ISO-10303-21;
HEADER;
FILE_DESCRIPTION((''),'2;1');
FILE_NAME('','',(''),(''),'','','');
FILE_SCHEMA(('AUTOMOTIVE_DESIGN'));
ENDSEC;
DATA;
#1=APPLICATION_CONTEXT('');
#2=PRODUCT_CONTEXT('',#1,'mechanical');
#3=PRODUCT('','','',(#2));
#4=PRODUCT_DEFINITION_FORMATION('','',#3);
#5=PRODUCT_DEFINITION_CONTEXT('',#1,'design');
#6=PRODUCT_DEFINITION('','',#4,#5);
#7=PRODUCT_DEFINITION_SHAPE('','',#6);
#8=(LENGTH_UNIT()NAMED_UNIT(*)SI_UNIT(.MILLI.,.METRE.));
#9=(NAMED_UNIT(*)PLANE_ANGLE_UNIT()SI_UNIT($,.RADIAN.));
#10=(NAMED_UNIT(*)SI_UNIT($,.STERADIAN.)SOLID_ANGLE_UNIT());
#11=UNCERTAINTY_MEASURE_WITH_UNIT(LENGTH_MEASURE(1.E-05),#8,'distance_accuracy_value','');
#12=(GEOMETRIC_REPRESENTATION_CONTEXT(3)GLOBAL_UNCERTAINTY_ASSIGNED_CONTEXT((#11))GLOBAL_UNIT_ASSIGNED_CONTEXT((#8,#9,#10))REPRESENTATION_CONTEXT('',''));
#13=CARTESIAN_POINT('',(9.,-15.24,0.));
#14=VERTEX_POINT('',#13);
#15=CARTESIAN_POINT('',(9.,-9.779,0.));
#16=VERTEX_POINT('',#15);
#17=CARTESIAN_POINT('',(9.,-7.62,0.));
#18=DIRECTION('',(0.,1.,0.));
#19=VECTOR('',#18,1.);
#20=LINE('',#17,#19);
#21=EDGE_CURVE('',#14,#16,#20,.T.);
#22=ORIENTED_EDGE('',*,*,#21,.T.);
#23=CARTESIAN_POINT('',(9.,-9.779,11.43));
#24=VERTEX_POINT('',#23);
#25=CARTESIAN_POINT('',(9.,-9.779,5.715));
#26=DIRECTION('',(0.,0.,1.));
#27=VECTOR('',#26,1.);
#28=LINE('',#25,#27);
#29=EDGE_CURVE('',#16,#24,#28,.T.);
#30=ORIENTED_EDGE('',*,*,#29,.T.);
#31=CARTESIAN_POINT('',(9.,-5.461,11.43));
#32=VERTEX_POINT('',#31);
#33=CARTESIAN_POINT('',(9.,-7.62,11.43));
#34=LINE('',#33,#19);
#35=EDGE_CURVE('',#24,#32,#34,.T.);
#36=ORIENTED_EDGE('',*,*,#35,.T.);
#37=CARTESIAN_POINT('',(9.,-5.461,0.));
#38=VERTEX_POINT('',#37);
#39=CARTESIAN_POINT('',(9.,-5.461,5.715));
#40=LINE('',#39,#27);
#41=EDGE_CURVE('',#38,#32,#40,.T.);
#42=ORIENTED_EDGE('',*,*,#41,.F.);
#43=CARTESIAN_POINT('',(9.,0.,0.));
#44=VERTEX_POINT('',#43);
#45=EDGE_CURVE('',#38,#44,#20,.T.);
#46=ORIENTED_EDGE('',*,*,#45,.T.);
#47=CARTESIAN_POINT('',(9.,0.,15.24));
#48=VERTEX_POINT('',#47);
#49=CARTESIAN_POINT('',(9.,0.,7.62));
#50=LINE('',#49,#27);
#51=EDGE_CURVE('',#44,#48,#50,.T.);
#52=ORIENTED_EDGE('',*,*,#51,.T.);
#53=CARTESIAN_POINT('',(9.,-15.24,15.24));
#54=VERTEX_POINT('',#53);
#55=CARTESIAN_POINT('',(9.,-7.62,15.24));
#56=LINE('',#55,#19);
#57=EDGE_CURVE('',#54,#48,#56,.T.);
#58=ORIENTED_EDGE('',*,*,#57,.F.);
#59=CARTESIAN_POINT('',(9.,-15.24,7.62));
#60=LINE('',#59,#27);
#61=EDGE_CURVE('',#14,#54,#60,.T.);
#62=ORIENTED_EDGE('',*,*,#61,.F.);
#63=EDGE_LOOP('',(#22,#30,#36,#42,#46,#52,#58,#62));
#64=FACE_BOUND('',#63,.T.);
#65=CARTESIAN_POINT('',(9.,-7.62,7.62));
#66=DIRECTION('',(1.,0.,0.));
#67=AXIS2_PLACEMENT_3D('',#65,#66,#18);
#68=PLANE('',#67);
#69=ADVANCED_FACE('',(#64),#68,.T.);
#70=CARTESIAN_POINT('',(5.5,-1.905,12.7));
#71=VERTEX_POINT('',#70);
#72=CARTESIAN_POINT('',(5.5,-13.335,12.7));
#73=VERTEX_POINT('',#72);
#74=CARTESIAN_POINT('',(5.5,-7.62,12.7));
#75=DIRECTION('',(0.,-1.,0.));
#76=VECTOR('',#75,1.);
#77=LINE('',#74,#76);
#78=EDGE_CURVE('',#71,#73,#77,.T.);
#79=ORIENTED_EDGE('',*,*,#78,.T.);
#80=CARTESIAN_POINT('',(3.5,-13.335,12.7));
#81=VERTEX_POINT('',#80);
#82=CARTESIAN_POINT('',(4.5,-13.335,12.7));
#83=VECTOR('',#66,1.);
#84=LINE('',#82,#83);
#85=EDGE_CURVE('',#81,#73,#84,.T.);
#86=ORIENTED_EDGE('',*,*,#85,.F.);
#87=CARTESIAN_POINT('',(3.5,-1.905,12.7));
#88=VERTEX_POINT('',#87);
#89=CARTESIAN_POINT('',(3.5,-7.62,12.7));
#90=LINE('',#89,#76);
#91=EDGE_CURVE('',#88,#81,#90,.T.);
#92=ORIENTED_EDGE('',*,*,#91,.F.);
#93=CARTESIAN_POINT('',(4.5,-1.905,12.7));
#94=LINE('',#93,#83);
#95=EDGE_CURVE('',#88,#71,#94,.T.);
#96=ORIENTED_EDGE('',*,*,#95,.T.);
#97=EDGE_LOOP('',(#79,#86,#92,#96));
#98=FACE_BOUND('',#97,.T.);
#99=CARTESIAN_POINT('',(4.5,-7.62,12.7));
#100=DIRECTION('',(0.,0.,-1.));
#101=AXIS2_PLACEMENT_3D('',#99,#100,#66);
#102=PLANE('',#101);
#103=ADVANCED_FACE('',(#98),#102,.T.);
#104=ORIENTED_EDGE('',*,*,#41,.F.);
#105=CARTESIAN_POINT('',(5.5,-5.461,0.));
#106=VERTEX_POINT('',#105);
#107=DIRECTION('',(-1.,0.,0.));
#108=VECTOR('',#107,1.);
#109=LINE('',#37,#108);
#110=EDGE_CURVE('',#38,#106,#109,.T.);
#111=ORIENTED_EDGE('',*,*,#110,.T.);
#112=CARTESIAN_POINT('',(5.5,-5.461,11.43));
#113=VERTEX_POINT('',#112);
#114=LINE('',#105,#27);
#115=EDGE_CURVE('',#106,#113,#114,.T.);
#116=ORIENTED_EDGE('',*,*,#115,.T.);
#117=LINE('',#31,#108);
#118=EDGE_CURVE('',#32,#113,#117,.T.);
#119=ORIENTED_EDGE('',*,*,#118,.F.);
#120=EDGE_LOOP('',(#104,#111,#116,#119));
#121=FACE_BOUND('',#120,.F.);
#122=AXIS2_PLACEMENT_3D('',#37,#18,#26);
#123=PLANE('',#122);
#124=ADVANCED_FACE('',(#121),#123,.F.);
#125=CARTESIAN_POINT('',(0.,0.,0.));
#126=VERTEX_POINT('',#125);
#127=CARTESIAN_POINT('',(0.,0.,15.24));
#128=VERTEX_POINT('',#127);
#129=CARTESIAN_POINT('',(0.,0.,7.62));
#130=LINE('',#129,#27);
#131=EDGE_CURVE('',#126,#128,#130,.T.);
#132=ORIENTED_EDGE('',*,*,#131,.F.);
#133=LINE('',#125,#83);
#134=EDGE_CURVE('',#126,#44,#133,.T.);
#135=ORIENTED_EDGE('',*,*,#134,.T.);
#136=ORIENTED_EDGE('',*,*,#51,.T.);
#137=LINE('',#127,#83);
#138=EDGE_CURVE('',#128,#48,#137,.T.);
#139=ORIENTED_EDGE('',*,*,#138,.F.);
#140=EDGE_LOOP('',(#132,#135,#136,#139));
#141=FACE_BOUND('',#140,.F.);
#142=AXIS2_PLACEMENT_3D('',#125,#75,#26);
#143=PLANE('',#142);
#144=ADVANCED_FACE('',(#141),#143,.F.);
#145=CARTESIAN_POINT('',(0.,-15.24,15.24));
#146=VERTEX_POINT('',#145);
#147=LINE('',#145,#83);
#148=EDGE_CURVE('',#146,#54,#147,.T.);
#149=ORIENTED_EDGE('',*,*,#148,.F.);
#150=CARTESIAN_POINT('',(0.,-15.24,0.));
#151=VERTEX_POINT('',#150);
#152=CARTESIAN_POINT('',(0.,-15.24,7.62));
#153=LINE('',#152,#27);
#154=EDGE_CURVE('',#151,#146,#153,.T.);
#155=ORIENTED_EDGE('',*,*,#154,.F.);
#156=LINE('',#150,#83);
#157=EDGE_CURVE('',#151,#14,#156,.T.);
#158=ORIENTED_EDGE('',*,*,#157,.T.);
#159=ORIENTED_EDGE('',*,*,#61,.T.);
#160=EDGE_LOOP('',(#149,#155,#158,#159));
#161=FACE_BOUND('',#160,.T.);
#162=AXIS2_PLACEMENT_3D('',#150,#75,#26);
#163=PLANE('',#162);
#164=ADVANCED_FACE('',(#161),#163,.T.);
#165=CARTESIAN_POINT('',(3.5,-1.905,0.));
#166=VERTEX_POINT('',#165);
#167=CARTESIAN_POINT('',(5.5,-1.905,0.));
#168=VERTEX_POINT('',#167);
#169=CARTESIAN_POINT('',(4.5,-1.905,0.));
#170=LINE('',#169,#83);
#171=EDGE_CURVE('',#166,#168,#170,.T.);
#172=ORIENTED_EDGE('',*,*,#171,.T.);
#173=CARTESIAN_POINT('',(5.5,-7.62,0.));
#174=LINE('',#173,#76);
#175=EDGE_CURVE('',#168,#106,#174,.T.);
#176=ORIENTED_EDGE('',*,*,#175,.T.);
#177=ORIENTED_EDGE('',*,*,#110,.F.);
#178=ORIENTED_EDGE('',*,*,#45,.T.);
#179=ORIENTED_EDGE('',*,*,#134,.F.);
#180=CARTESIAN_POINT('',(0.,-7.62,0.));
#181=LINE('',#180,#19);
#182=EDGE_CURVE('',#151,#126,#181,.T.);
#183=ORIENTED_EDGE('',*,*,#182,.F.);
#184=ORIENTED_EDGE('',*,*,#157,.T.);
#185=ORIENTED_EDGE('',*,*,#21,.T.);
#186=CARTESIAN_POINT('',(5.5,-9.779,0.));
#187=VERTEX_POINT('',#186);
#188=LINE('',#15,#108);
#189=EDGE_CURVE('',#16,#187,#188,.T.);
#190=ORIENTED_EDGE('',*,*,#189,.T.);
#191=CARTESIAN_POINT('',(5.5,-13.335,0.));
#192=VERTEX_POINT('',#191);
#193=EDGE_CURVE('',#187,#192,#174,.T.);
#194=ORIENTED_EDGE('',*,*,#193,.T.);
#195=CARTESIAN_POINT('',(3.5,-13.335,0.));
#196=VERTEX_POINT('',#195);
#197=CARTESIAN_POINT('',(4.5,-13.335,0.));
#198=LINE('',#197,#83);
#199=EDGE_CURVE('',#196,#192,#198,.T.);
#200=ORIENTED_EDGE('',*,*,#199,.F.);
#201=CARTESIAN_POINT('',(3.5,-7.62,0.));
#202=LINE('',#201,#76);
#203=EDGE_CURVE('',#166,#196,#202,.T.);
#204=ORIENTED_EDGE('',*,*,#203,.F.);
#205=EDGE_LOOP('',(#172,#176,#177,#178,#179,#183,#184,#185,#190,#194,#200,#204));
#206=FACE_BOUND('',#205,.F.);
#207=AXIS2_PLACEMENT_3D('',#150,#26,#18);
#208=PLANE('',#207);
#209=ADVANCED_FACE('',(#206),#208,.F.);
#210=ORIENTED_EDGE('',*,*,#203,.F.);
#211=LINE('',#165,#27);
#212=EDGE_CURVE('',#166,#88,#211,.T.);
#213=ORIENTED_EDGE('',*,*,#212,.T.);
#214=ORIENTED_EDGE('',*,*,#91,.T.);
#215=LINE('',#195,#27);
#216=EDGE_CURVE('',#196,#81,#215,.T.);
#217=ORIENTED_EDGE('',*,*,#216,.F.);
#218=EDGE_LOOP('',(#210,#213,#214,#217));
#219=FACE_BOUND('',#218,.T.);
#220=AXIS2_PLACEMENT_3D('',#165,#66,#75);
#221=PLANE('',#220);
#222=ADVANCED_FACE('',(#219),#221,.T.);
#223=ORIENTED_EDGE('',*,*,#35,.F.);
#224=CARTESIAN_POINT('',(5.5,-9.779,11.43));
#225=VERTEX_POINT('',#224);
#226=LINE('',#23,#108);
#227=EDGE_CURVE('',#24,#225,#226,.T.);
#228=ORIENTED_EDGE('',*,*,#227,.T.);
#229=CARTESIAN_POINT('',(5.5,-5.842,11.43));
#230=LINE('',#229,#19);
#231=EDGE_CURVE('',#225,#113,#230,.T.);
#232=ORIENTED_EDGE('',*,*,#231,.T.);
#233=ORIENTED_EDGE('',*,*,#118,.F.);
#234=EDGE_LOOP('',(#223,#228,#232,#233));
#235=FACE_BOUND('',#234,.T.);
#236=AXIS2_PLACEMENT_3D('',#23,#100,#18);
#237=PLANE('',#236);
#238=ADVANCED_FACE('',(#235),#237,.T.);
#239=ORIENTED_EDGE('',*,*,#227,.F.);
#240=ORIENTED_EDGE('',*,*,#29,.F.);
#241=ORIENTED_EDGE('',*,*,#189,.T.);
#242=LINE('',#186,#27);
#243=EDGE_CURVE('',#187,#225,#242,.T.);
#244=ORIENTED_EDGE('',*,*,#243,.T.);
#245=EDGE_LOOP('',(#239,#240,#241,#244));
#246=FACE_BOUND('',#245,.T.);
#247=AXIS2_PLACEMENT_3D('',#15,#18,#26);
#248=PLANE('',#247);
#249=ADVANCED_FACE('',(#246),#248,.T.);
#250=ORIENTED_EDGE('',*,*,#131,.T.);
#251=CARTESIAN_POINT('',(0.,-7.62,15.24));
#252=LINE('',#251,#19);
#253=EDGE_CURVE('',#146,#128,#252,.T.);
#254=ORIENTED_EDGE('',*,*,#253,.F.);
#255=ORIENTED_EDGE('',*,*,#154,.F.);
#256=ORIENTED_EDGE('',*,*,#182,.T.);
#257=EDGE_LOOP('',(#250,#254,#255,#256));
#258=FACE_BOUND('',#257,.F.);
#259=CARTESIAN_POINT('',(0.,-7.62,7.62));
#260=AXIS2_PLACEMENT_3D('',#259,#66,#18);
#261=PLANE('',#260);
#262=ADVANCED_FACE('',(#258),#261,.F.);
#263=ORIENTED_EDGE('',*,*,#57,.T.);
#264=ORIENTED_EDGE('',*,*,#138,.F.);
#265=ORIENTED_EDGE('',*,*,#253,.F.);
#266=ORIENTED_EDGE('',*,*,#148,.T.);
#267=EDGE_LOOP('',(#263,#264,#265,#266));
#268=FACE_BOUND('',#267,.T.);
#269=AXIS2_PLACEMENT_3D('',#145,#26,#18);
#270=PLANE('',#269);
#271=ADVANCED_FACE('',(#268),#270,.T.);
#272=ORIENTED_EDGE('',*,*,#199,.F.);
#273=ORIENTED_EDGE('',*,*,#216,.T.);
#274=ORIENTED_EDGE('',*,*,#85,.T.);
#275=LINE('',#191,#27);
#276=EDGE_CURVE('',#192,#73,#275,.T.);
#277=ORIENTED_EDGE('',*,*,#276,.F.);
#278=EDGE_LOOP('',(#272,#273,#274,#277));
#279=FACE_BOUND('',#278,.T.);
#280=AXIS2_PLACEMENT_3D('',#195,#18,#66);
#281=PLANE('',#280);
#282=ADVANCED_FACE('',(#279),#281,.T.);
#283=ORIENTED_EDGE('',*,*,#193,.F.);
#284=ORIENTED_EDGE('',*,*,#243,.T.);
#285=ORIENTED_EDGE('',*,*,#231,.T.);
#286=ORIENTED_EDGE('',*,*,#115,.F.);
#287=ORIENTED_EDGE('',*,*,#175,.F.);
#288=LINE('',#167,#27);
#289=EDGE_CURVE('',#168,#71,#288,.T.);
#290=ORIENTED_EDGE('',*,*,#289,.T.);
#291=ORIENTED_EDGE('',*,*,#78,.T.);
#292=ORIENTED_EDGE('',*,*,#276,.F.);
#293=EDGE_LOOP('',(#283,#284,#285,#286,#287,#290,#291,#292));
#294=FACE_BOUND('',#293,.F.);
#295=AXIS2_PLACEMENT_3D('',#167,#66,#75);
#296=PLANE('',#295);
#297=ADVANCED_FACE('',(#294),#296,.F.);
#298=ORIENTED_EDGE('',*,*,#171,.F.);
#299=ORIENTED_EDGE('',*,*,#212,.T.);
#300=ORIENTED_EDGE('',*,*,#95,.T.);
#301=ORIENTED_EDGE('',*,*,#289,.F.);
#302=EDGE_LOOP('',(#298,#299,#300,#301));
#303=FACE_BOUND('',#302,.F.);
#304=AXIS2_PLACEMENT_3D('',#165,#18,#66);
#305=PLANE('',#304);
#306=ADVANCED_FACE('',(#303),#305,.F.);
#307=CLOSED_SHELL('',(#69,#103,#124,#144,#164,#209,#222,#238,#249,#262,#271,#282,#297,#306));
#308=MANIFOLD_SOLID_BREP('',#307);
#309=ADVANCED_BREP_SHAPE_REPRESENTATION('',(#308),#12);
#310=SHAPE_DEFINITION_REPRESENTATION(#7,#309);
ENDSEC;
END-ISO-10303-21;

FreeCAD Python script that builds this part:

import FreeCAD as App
import Part
import Sketcher
from FreeCAD import Vector
Q = App.Units.Quantity

doc = App.newDocument("Part")
body = doc.addObject("PartDesign::Body", "Body")

# Sketch on YZ plane
sketch1 = doc.addObject("Sketcher::SketchObject", "Sketch")
body.addObject(sketch1)
sketch1.AttachmentSupport = (doc.YZ_Plane, [""])
sketch1.MapMode = "FlatFace"
sketch1.addGeometry(Part.LineSegment(Vector(-15, 15, 0), Vector(-15, 0, 0)), False)
sketch1.addGeometry(Part.LineSegment(Vector(-15, 0, 0), Vector(0, 0, 0)), False)
sketch1.addGeometry(Part.LineSegment(Vector(0, 0, 0), Vector(0, 15, 0)), False)
sketch1.addGeometry(Part.LineSegment(Vector(0, 15, 0), Vector(-15, 15, 0)), False)
sketch1.addConstraint(Sketcher.Constraint("Coincident", 0, 2, 1, 1))
sketch1.addConstraint(Sketcher.Constraint("Coincident", 1, 2, 2, 1))
sketch1.addConstraint(Sketcher.Constraint("Coincident", 2, 2, 3, 1))
sketch1.addConstraint(Sketcher.Constraint("Coincident", 3, 2, 0, 1))
sketch1.addConstraint(Sketcher.Constraint("Vertical", 0))
sketch1.addConstraint(Sketcher.Constraint("Horizontal", 1))
sketch1.addConstraint(Sketcher.Constraint("Vertical", 2))
sketch1.addConstraint(Sketcher.Constraint("Horizontal", 3))
sketch1.addConstraint(Sketcher.Constraint("Coincident", 1, 2, -1, 1))
sketch1.addConstraint(Sketcher.Constraint("Equal", 3, 0))
sketch1.addConstraint(Sketcher.Constraint("DistanceX", 1, 1, 1, 2, Q("0.6 in")))
pad1 = doc.addObject("PartDesign::Pad", "Pad")
body.addObject(pad1)
pad1.Profile = sketch1
pad1.Length = 9

# Sketch on XY plane
sketch2 = doc.addObject("Sketcher::SketchObject", "Sketch001")
body.addObject(sketch2)
sketch2.AttachmentSupport = (doc.XY_Plane, [""])
sketch2.MapMode = "FlatFace"
sketch2.addGeometry(Part.LineSegment(Vector(3.5, -13.3, 0), Vector(3.5, -1.9, 0)), False)
sketch2.addGeometry(Part.LineSegment(Vector(3.5, -1.9, 0), Vector(5.5, -1.9, 0)), False)
sketch2.addGeometry(Part.LineSegment(Vector(5.5, -1.9, 0), Vector(5.5, -13.3, 0)), False)
sketch2.addGeometry(Part.LineSegment(Vector(5.5, -13.3, 0), Vector(3.5, -13.3, 0)), False)
sketch2.addConstraint(Sketcher.Constraint("Coincident", 0, 2, 1, 1))
sketch2.addConstraint(Sketcher.Constraint("Coincident", 1, 2, 2, 1))
sketch2.addConstraint(Sketcher.Constraint("Coincident", 2, 2, 3, 1))
sketch2.addConstraint(Sketcher.Constraint("Coincident", 3, 2, 0, 1))
sketch2.addConstraint(Sketcher.Constraint("Vertical", 0))
sketch2.addConstraint(Sketcher.Constraint("Horizontal", 1))
sketch2.addConstraint(Sketcher.Constraint("Vertical", 2))
sketch2.addConstraint(Sketcher.Constraint("Horizontal", 3))
sketch2.addConstraint(Sketcher.Constraint("DistanceY", 0, 1, 0, 2, Q("0.45 in")))
sketch2.addConstraint(Sketcher.Constraint("DistanceY", 0, 2, -1, 1, Q("0.075 in")))
sketch2.addConstraint(Sketcher.Constraint("DistanceX", 1, 1, 1, 2, 2.0))
sketch2.addConstraint(Sketcher.Constraint("DistanceX", -1, 1, 0, 2, 3.5))
pocket1 = doc.addObject("PartDesign::Pocket", "Pocket")
body.addObject(pocket1)
pocket1.Profile = sketch2
pocket1.Length = Q("0.5 in")
pocket1.Reversed = True

# Sketch on YZ plane
sketch3 = doc.addObject("Sketcher::SketchObject", "Sketch002")
body.addObject(sketch3)
sketch3.AttachmentSupport = (doc.YZ_Plane, [""])
sketch3.MapMode = "FlatFace"
sketch3.AttachmentOffset = App.Placement(Vector(0, 0, 9), App.Rotation())
sketch3.addGeometry(Part.LineSegment(Vector(-9.8, 11.4, 0), Vector(-9.8, 0, 0)), False)
sketch3.addGeometry(Part.LineSegment(Vector(-9.8, 0, 0), Vector(-5.5, 0, 0)), False)
sketch3.addGeometry(Part.LineSegment(Vector(-5.5, 0, 0), Vector(-5.5, 11.4, 0)), False)
sketch3.addGeometry(Part.LineSegment(Vector(-5.5, 11.4, 0), Vector(-9.8, 11.4, 0)), False)
sketch3.addConstraint(Sketcher.Constraint("Coincident", 0, 2, 1, 1))
sketch3.addConstraint(Sketcher.Constraint("Coincident", 1, 2, 2, 1))
sketch3.addConstraint(Sketcher.Constraint("Coincident", 2, 2, 3, 1))
sketch3.addConstraint(Sketcher.Constraint("Coincident", 3, 2, 0, 1))
sketch3.addConstraint(Sketcher.Constraint("Vertical", 0))
sketch3.addConstraint(Sketcher.Constraint("Horizontal", 1))
sketch3.addConstraint(Sketcher.Constraint("Vertical", 2))
sketch3.addConstraint(Sketcher.Constraint("Horizontal", 3))
sketch3.addConstraint(Sketcher.Constraint("PointOnObject", 0, 2, -1))
sketch3.addConstraint(Sketcher.Constraint("DistanceX", 1, 1, 1, 2, Q("0.17 in")))
sketch3.addConstraint(Sketcher.Constraint("DistanceY", 0, 2, 0, 1, Q("0.45 in")))
sketch3.addConstraint(Sketcher.Constraint("DistanceX", 0, 2, -1, 1, Q("0.385 in")))
pocket2 = doc.addObject("PartDesign::Pocket", "Pocket001")
body.addObject(pocket2)
pocket2.Profile = sketch3
pocket2.Length = 3.6

doc.recompute()
